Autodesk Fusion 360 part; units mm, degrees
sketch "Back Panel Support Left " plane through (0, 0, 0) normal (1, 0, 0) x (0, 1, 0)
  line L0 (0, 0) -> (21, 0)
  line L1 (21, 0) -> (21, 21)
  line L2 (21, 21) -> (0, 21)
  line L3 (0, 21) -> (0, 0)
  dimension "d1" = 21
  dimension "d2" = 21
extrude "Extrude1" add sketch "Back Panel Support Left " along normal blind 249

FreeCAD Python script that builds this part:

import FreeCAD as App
import Part
import Sketcher
from FreeCAD import Vector
Q = App.Units.Quantity

doc = App.newDocument("Part")
body = doc.addObject("PartDesign::Body", "Body")

sketch1 = body.newObject("Sketcher::SketchObject", "Sketch")
sketch1.AttachmentSupport = (doc.getObject("YZ_Plane"), [""])
sketch1.MapMode = "FlatFace"
sketch1.addGeometry([
    Part.LineSegment(Vector(0, 21, 0), Vector(0, 0, 0)),
    Part.LineSegment(Vector(0, 0, 0), Vector(21, 0, 0)),
    Part.LineSegment(Vector(21, 0, 0), Vector(21, 21, 0)),
    Part.LineSegment(Vector(21, 21, 0), Vector(0, 21, 0)),
], False)
sketch1.addConstraint([
    Sketcher.Constraint("Coincident", 0, 2, 1, 1),
    Sketcher.Constraint("Coincident", 1, 2, 2, 1),
    Sketcher.Constraint("Coincident", 2, 2, 3, 1),
    Sketcher.Constraint("Coincident", 3, 2, 0, 1),
    Sketcher.Constraint("Vertical", 0),
    Sketcher.Constraint("Horizontal", 1),
    Sketcher.Constraint("Vertical", 2),
    Sketcher.Constraint("Horizontal", 3),
    Sketcher.Constraint("Coincident", 0, 2, -1, 1),
    Sketcher.Constraint("Equal", 3, 0),
    Sketcher.Constraint("DistanceX", 1, 1, 1, 2, Q("21 mm")),
])
pad1 = body.newObject("PartDesign::Pad", "Pad")
pad1.Profile = sketch1
pad1.Length = 249

doc.recompute()
